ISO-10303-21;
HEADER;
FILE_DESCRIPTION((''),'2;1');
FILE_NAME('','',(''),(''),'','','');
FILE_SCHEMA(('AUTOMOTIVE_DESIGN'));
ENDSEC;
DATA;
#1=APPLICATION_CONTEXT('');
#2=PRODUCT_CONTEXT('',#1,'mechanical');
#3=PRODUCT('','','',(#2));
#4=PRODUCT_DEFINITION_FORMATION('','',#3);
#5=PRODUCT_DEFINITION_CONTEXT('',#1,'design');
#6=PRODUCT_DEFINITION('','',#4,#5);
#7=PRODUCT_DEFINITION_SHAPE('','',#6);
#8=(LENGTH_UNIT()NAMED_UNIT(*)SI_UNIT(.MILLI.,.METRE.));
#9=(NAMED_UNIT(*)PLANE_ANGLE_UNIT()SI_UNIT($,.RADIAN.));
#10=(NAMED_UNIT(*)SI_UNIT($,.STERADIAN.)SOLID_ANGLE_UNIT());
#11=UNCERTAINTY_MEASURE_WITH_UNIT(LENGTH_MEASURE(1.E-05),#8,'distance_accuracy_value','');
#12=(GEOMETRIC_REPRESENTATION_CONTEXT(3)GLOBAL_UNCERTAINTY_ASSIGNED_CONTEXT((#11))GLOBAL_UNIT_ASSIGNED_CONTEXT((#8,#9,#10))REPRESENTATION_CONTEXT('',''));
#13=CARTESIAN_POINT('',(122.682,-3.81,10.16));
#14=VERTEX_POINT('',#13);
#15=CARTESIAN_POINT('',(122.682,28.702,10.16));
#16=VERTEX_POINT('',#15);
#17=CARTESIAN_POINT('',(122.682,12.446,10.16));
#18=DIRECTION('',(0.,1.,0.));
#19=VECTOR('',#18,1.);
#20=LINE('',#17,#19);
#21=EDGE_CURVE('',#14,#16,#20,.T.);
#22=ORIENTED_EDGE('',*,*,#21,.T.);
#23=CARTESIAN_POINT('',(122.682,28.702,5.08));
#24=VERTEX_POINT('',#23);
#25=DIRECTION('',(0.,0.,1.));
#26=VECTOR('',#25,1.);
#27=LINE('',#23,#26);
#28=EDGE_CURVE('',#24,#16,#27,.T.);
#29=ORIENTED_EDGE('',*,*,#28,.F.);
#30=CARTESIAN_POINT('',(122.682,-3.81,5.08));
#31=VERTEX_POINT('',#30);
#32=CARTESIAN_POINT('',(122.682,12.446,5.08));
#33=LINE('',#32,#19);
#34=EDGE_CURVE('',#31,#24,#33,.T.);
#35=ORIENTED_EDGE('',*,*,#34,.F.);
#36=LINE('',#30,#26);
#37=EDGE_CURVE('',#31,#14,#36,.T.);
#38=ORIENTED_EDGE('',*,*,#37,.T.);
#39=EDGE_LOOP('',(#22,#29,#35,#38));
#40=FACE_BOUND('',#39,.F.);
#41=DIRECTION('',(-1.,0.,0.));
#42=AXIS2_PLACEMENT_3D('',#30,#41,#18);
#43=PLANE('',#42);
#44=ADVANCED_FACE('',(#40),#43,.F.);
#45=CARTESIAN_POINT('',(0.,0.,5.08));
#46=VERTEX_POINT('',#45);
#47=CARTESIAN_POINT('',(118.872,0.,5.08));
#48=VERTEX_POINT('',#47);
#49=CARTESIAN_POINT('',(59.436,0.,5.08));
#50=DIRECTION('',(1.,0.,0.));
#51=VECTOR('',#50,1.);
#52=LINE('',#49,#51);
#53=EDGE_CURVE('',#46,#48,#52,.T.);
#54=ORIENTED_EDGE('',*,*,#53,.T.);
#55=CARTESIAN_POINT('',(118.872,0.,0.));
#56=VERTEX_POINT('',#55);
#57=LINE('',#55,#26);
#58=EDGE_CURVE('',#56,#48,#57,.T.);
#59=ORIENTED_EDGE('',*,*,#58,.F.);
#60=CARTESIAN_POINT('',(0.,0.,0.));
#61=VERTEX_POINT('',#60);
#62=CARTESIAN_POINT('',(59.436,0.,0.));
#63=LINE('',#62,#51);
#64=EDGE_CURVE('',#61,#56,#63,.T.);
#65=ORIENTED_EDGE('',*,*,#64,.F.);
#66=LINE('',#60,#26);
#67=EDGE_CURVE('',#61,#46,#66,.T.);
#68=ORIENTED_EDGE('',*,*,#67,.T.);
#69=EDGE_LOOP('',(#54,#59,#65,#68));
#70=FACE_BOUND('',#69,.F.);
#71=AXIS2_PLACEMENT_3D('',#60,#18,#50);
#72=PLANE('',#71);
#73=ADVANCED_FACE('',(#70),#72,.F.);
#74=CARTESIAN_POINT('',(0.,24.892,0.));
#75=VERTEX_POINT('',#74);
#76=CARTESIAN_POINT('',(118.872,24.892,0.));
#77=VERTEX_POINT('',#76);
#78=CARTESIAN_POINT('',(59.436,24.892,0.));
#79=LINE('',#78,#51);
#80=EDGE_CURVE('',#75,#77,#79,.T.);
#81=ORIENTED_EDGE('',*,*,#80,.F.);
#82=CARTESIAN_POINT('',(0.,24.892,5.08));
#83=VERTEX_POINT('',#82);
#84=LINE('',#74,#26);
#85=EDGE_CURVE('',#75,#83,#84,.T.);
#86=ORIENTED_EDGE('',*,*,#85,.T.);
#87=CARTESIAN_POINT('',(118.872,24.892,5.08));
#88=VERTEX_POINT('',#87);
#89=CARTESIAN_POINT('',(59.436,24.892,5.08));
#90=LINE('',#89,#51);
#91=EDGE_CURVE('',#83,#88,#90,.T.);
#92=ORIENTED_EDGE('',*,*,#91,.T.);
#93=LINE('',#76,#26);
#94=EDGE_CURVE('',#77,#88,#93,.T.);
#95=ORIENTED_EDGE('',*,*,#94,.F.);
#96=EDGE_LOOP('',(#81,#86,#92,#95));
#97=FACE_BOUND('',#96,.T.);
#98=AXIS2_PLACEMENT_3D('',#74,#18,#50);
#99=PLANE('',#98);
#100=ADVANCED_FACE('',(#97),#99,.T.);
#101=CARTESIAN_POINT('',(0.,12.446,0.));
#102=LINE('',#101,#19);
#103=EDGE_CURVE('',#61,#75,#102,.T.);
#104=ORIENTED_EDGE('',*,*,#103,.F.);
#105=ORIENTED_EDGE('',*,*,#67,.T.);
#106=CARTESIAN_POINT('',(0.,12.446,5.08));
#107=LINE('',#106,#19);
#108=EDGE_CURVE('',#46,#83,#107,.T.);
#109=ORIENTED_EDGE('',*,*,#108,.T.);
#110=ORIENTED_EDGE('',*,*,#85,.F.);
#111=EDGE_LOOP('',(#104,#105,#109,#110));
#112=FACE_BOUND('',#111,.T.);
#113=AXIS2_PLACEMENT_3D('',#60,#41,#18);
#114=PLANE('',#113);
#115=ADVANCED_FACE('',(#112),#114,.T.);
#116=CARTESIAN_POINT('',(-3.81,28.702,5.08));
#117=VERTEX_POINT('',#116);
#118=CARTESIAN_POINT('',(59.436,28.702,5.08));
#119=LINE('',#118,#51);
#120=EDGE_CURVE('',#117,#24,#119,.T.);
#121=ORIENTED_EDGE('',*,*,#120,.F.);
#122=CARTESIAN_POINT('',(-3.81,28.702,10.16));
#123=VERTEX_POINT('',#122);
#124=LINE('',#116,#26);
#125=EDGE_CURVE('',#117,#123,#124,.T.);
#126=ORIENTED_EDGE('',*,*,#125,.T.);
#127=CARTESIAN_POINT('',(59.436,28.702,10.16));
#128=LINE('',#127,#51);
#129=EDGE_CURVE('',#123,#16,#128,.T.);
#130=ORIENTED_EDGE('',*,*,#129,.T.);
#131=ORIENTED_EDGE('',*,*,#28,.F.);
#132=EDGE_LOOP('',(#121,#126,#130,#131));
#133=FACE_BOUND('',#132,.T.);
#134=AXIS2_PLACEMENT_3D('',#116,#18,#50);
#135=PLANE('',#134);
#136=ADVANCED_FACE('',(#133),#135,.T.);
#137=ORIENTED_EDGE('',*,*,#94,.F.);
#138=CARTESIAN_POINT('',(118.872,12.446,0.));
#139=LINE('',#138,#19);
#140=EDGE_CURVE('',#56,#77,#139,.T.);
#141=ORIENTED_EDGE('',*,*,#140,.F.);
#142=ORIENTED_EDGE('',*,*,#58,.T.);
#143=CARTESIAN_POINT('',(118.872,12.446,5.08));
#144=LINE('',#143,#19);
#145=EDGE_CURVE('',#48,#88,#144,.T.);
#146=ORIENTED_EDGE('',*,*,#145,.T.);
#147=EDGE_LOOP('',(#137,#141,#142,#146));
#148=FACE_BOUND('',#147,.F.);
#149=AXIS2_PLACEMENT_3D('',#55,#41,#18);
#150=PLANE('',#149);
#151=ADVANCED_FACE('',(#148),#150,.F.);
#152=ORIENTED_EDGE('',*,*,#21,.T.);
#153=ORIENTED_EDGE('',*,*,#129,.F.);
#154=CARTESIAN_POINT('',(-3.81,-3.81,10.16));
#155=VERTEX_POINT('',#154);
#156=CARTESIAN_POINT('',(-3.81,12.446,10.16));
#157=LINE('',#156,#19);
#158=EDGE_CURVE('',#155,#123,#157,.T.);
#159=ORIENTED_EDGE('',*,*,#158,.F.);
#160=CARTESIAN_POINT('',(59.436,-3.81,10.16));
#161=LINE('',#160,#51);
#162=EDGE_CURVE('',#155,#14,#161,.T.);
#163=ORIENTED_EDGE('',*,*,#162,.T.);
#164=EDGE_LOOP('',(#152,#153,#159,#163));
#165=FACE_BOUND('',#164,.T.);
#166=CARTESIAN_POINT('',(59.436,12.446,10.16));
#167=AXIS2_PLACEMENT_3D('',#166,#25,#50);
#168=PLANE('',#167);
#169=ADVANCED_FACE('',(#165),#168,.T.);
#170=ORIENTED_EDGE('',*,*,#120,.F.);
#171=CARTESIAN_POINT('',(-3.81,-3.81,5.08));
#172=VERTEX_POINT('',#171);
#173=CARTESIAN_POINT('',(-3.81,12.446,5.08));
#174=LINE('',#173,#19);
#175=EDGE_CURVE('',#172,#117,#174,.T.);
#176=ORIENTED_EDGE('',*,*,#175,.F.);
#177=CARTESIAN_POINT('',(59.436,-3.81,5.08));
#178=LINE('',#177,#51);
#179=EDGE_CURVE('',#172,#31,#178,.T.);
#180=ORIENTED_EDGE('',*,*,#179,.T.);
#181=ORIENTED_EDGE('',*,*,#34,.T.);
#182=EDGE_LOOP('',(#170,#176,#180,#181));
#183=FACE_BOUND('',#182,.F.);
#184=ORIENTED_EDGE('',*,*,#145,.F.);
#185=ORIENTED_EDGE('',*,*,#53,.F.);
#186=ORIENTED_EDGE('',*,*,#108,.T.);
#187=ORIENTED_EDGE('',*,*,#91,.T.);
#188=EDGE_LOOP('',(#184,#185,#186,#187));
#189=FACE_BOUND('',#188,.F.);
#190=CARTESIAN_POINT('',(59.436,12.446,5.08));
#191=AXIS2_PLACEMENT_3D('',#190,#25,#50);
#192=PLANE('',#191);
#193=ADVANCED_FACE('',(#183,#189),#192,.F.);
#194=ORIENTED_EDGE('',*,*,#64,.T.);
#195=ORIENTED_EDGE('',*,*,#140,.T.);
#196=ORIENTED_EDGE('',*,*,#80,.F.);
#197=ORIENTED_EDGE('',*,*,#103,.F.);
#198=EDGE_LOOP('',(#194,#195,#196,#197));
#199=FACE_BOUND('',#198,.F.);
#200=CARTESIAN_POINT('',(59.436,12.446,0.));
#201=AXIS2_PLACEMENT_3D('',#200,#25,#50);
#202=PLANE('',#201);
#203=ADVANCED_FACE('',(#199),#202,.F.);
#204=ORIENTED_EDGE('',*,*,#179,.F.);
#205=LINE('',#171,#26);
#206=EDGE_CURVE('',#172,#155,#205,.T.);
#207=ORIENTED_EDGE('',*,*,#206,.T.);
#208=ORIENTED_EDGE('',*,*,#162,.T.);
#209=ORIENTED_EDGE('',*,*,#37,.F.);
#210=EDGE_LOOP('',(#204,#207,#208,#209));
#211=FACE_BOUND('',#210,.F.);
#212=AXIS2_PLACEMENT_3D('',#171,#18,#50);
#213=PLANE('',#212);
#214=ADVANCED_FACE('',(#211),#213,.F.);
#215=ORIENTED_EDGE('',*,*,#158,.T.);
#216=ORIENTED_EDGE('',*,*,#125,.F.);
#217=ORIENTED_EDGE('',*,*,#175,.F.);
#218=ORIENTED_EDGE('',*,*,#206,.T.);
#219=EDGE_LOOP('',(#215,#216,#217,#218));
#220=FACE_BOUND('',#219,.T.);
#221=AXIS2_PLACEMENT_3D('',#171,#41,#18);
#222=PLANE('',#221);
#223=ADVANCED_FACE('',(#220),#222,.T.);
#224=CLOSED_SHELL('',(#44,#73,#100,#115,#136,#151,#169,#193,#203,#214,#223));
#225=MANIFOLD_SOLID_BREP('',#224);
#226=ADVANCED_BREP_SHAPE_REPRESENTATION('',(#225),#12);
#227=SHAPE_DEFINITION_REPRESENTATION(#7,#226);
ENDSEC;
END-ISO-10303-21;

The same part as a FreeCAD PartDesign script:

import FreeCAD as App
import Part
import Sketcher
from FreeCAD import Vector
Q = App.Units.Quantity


def add_polygon(sketch, points):
    """Adds a closed chain of lines whose ends are joined by coincident constraints."""
    first, n = sketch.GeometryCount, len(points)
    for a, b in zip(points, points[1:] + points[:1]):
        sketch.addGeometry(Part.LineSegment(App.Vector(*a, 0), App.Vector(*b, 0)), False)
    for i in range(n):
        sketch.addConstraint(Sketcher.Constraint("Coincident", first + i, 2, first + (i + 1) % n, 1))

doc = App.newDocument("Part")
params = doc.addObject("Spreadsheet::Sheet", "Params")
for row, (alias, value) in enumerate([
    ("sketch1_width", "4.68 in"),
    ("sketch1_height", "0.98 in"),
    ("pad1_length", "0.2 in"),
    ("sketch2_width", "4.98 in"),
    ("sketch2_height", "1.28 in"),
    ("pad2_length", "0.2 in"),
], start=1):
    params.set(f"A{row}", alias)
    params.set(f"B{row}", "=" + value)
    params.setAlias(f"B{row}", alias)

body = doc.addObject("PartDesign::Body", "Body")

# Sketch on XY plane
sketch1 = doc.addObject("Sketcher::SketchObject", "Sketch")
body.addObject(sketch1)
sketch1.AttachmentSupport = (doc.XY_Plane, [""])
sketch1.MapMode = "FlatFace"
add_polygon(sketch1, [(0, 24.892), (0, 0), (118.872, 0), (118.872, 24.892)])  # lines 0-3
sketch1.addConstraint([
    Sketcher.Constraint("Vertical", 0),
    Sketcher.Constraint("Horizontal", 1),
    Sketcher.Constraint("Vertical", 2),
    Sketcher.Constraint("Horizontal", 3),
    Sketcher.Constraint("Coincident", 0, 2, -1, 1),
    Sketcher.Constraint("DistanceX", 1, 1, 1, 2, Q("4.68 in")),
    Sketcher.Constraint("DistanceY", 0, 2, 0, 1, Q("0.98 in")),
])
sketch1.setExpression("Constraints[9]", "Params.sketch1_width")
sketch1.setExpression("Constraints[10]", "Params.sketch1_height")
pad1 = doc.addObject("PartDesign::Pad", "Pad")
body.addObject(pad1)
pad1.Profile = sketch1
pad1.setExpression("Length", "Params.pad1_length")

# Sketch on XY plane
sketch2 = doc.addObject("Sketcher::SketchObject", "Sketch001")
body.addObject(sketch2)
sketch2.AttachmentSupport = (doc.XY_Plane, [""])
sketch2.MapMode = "FlatFace"
sketch2.AttachmentOffset = App.Placement(Vector(0, 0, 0.2 * 25.4), App.Rotation())
add_polygon(sketch2, [(-3.81, 28.702), (-3.81, -3.81), (122.682, -3.81), (122.682, 28.702)])  # lines 0-3
sketch2.addConstraint([
    Sketcher.Constraint("Vertical", 0),
    Sketcher.Constraint("Horizontal", 1),
    Sketcher.Constraint("Vertical", 2),
    Sketcher.Constraint("Horizontal", 3),
    Sketcher.Constraint("DistanceX", 1, 1, 1, 2, Q("4.98 in")),
    Sketcher.Constraint("DistanceY", 0, 2, 0, 1, Q("1.28 in")),
    Sketcher.Constraint("DistanceX", 0, 2, -1, 1, Q("0.15 in")),
    Sketcher.Constraint("DistanceY", 0, 2, -1, 1, Q("0.15 in")),
])
sketch2.setExpression("Constraints[8]", "Params.sketch2_width")
sketch2.setExpression("Constraints[9]", "Params.sketch2_height")
pad2 = doc.addObject("PartDesign::Pad", "Pad001")
body.addObject(pad2)
pad2.Profile = sketch2
pad2.setExpression("Length", "Params.pad2_length")

doc.recompute()
